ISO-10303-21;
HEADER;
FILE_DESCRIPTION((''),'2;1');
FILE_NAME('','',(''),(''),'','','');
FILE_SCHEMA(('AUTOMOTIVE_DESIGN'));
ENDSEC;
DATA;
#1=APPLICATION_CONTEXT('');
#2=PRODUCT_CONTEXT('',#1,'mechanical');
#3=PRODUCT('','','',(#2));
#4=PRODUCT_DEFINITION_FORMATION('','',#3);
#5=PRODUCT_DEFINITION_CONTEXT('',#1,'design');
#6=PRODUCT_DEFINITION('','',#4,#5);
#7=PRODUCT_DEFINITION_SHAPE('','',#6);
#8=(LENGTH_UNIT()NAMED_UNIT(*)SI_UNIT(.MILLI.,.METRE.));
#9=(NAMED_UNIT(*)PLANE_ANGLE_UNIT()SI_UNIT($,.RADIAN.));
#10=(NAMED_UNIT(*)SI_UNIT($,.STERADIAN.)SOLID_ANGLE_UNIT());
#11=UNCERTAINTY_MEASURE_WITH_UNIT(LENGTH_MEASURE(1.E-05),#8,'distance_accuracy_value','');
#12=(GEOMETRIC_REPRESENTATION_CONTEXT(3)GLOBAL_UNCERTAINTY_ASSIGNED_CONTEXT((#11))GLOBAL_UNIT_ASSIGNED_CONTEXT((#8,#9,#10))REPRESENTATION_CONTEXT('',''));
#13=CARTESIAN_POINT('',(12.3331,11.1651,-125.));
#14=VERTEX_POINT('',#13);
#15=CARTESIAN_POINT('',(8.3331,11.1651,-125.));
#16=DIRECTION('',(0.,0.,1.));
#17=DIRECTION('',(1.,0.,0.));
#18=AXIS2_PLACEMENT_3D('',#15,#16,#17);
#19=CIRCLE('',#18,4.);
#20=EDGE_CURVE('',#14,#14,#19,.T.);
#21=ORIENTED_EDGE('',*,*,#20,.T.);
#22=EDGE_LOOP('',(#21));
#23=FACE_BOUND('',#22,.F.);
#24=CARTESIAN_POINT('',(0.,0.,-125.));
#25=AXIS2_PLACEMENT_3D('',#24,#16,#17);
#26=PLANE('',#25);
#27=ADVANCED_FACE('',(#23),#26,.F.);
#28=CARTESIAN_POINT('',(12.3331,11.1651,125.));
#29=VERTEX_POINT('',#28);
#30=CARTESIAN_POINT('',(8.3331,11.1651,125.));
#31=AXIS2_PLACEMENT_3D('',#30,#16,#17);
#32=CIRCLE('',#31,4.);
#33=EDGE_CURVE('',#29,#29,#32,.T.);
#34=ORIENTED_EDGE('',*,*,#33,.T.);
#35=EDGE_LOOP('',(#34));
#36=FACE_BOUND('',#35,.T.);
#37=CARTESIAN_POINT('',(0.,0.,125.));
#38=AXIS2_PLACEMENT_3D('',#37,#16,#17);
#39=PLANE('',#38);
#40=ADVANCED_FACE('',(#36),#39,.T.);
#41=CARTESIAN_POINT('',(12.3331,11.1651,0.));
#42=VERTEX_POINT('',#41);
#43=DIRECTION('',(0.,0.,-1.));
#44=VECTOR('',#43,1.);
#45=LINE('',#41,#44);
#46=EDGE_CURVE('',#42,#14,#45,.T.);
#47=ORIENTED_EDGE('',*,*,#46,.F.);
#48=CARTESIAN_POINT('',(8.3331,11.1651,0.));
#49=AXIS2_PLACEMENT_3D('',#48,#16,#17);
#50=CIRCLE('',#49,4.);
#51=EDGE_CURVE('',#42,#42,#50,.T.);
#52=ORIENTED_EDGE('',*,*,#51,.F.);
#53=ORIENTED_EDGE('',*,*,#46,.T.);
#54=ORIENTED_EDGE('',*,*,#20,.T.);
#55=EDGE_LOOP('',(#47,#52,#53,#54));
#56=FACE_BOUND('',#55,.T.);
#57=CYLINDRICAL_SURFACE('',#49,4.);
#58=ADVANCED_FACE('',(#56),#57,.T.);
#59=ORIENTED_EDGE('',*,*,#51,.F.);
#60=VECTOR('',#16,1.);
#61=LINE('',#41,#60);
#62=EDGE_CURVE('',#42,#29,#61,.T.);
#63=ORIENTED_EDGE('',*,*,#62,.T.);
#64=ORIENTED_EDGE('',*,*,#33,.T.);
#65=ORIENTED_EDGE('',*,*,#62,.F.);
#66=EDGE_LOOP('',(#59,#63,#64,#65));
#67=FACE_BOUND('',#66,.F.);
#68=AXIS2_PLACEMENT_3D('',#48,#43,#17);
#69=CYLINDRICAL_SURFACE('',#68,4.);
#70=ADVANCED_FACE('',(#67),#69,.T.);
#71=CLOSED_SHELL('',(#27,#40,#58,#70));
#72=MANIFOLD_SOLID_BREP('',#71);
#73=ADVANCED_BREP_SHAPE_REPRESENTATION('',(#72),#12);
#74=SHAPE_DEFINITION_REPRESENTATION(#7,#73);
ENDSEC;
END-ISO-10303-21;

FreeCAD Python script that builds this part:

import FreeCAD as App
import Part
import Sketcher

V = App.Vector

doc = App.newDocument("Part")
body = doc.addObject("PartDesign::Body", "Body")

sketch1 = body.newObject("Sketcher::SketchObject", "Sketch")
sketch1.AttachmentSupport = (doc.getObject("XY_Plane"), [""])
sketch1.MapMode = "FlatFace"
sketch1.addGeometry(Part.Circle(V(8.3, 11.2, 0), V(0, 0, 1), 4), False)
sketch1.addConstraint([
    Sketcher.Constraint("Diameter", 0, 8.0),
    Sketcher.Constraint("DistanceX", -1, 1, 0, 3, 8.333),
    Sketcher.Constraint("DistanceY", -1, 1, 0, 3, 11.165),
])
pad1 = body.newObject("PartDesign::Pad", "Pad")
pad1.Profile = sketch1
pad1.Length = 250
pad1.Midplane = True

doc.recompute()
